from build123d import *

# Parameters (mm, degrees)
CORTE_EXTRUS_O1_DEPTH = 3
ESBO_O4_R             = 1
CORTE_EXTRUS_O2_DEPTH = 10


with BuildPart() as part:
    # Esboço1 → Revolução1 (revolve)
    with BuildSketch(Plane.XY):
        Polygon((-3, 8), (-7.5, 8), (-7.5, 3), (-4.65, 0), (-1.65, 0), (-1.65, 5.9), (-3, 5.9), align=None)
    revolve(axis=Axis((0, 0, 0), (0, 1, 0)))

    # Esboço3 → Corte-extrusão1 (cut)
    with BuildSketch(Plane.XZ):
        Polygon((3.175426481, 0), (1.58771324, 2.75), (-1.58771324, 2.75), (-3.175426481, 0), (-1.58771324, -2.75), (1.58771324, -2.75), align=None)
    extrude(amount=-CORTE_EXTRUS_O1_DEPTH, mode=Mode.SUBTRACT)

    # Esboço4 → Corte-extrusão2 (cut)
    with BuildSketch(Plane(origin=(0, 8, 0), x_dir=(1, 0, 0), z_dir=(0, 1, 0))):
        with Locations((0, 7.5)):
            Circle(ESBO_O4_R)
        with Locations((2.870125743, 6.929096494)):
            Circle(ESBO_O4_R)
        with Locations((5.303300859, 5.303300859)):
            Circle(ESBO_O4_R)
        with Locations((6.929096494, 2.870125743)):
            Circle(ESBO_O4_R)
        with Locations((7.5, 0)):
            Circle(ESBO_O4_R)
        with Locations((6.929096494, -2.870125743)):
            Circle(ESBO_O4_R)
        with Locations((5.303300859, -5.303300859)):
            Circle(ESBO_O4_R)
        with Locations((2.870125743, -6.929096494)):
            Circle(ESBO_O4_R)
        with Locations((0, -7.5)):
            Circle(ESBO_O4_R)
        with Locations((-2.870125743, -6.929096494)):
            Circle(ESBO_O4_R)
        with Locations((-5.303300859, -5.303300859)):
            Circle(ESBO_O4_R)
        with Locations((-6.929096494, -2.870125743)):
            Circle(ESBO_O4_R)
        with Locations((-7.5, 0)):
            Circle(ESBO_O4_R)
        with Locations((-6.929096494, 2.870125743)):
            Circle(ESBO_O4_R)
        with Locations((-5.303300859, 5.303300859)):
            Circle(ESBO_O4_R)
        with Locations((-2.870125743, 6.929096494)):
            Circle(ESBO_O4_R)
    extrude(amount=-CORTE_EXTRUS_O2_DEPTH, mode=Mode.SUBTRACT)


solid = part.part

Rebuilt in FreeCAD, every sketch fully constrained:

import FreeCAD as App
import Part
import Sketcher

V = App.Vector
Q = App.Units.Quantity

doc = App.newDocument("Part")
params = doc.addObject("Spreadsheet::Sheet", "Params")
for row, (alias, value) in enumerate([
    ("sketch1_width", "3 mm"),
    ("sketch1_height", "5 mm"),
    ("sketch1_width2", "4.5 mm"),
    ("sketch1_height2", "5.9 mm"),
    ("sketch1_height3", "2.1 mm"),
    ("revolution_angle", "360 deg"),
    ("pocket1_length", "3 mm"),
    ("sketch3_diameter", "2 mm"),
    ("pocket2_length", "10 mm"),
], start=1):
    params.set(f"A{row}", alias)
    params.set(f"B{row}", "=" + value)
    params.setAlias(f"B{row}", alias)

body = doc.addObject("PartDesign::Body", "Body")

# Sketch on XY plane
sketch1 = doc.addObject("Sketcher::SketchObject", "Sketch")
body.addObject(sketch1)
sketch1.AttachmentSupport = (doc.XY_Plane, [""])
sketch1.MapMode = "FlatFace"
sketch1.addGeometry([
    Part.LineSegment(V(-3, 8, 0), V(-7.5, 8, 0)),  # 0
    Part.LineSegment(V(-7.5, 8, 0), V(-7.5, 3, 0)),  # 1
    Part.LineSegment(V(-7.5, 3, 0), V(-4.7, 0, 0)),  # 2
    Part.LineSegment(V(-4.7, 0, 0), V(-1.6, 0, 0)),  # 3
    Part.LineSegment(V(-1.6, 0, 0), V(-1.6, 5.9, 0)),  # 4
    Part.LineSegment(V(-1.6, 5.9, 0), V(-3, 5.9, 0)),  # 5
    Part.LineSegment(V(-3, 5.9, 0), V(-3, 8, 0)),  # 6
], False)
sketch1.addConstraint([
    Sketcher.Constraint("Coincident", 0, 2, 1, 1),
    Sketcher.Constraint("Coincident", 1, 2, 2, 1),
    Sketcher.Constraint("Coincident", 2, 2, 3, 1),
    Sketcher.Constraint("Coincident", 3, 2, 4, 1),
    Sketcher.Constraint("Coincident", 4, 2, 5, 1),
    Sketcher.Constraint("Coincident", 5, 2, 6, 1),
    Sketcher.Constraint("Coincident", 6, 2, 0, 1),
    Sketcher.Constraint("Horizontal", 0),
    Sketcher.Constraint("Vertical", 1),
    Sketcher.Constraint("Horizontal", 3),
    Sketcher.Constraint("Vertical", 4),
    Sketcher.Constraint("Horizontal", 5),
    Sketcher.Constraint("Vertical", 6),
    Sketcher.Constraint("PointOnObject", 2, 2, -1),
    Sketcher.Constraint("DistanceX", 3, 1, 3, 2, 3.0),
    Sketcher.Constraint("DistanceY", 1, 2, 1, 1, 5.0),
    Sketcher.Constraint("DistanceX", 0, 2, 0, 1, 4.5),
    Sketcher.Constraint("DistanceY", 4, 1, 4, 2, 5.9),
    Sketcher.Constraint("DistanceY", 6, 1, 6, 2, 2.1),
    Sketcher.Constraint("DistanceX", 5, 2, -1, 1, 3.0),
    Sketcher.Constraint("DistanceX", 5, 2, 5, 1, 1.35),
])
sketch1.setExpression("Constraints[14]", "Params.sketch1_width")
sketch1.setExpression("Constraints[15]", "Params.sketch1_height")
sketch1.setExpression("Constraints[16]", "Params.sketch1_width2")
sketch1.setExpression("Constraints[17]", "Params.sketch1_height2")
sketch1.setExpression("Constraints[18]", "Params.sketch1_height3")
revolution = doc.addObject("PartDesign::Revolution", "Revolution")
body.addObject(revolution)
revolution.Profile = sketch1
revolution.ReferenceAxis = (sketch1, ["V_Axis"])
revolution.setExpression("Angle", "Params.revolution_angle")

# Sketch on XZ plane
sketch2 = doc.addObject("Sketcher::SketchObject", "Sketch001")
body.addObject(sketch2)
sketch2.AttachmentSupport = (doc.XZ_Plane, [""])
sketch2.MapMode = "FlatFace"
sketch2.addGeometry([
    Part.LineSegment(V(3.2, 0, 0), V(1.6, 2.8, 0)),  # 0
    Part.LineSegment(V(1.6, 2.8, 0), V(-1.6, 2.8, 0)),  # 1
    Part.LineSegment(V(-1.6, 2.8, 0), V(-3.2, 0, 0)),  # 2
    Part.LineSegment(V(-3.2, 0, 0), V(-1.6, -2.8, 0)),  # 3
    Part.LineSegment(V(-1.6, -2.8, 0), V(1.6, -2.8, 0)),  # 4
    Part.LineSegment(V(1.6, -2.8, 0), V(3.2, 0, 0)),  # 5
], False)
sketch2.addConstraint([
    Sketcher.Constraint("Coincident", 0, 2, 1, 1),
    Sketcher.Constraint("Coincident", 1, 2, 2, 1),
    Sketcher.Constraint("Coincident", 2, 2, 3, 1),
    Sketcher.Constraint("Coincident", 3, 2, 4, 1),
    Sketcher.Constraint("Coincident", 4, 2, 5, 1),
    Sketcher.Constraint("Coincident", 5, 2, 0, 1),
    Sketcher.Constraint("Horizontal", 1),
    Sketcher.Constraint("Horizontal", 4),
    Sketcher.Constraint("Symmetric", 0, 2, 3, 2, -1, 1),
    Sketcher.Constraint("Symmetric", 2, 2, 5, 2, -1, 1),
    Sketcher.Constraint("PointOnObject", 2, 2, -1),
    Sketcher.Constraint("Parallel", 2, 5),
    Sketcher.Constraint("Vertical", 1, 2, 3, 2),
    Sketcher.Constraint("Angle", 0, Q("120 deg")),
    Sketcher.Constraint("DistanceY", 3, 2, 1, 2, 5.5),
    Sketcher.Constraint("DistanceX", 1, 2, 1, 1, 3.175426),
])
pocket1 = doc.addObject("PartDesign::Pocket", "Pocket")
body.addObject(pocket1)
pocket1.Profile = sketch2
pocket1.setExpression("Length", "Params.pocket1_length")

# Sketch on XZ plane
sketch3 = doc.addObject("Sketcher::SketchObject", "Sketch002")
body.addObject(sketch3)
sketch3.AttachmentSupport = (doc.XZ_Plane, [""])
sketch3.MapMode = "FlatFace"
sketch3.AttachmentOffset = App.Placement(V(0, 0, -8), App.Rotation())
sketch3.addGeometry([
    Part.Circle(V(0, -7.5, 0), V(0, 0, 1), 1),  # 0
    Part.Circle(V(2.9, -6.9, 0), V(0, 0, 1), 1),  # 1
    Part.Circle(V(5.3, -5.3, 0), V(0, 0, 1), 1),  # 2
    Part.Circle(V(6.9, -2.9, 0), V(0, 0, 1), 1),  # 3
    Part.Circle(V(7.5, 0, 0), V(0, 0, 1), 1),  # 4
    Part.Circle(V(6.9, 2.9, 0), V(0, 0, 1), 1),  # 5
    Part.Circle(V(5.3, 5.3, 0), V(0, 0, 1), 1),  # 6
    Part.Circle(V(2.9, 6.9, 0), V(0, 0, 1), 1),  # 7
    Part.Circle(V(0, 7.5, 0), V(0, 0, 1), 1),  # 8
    Part.Circle(V(-2.9, 6.9, 0), V(0, 0, 1), 1),  # 9
    Part.Circle(V(-5.3, 5.3, 0), V(0, 0, 1), 1),  # 10
    Part.Circle(V(-6.9, 2.9, 0), V(0, 0, 1), 1),  # 11
    Part.Circle(V(-7.5, 0, 0), V(0, 0, 1), 1),  # 12
    Part.Circle(V(-6.9, -2.9, 0), V(0, 0, 1), 1),  # 13
    Part.Circle(V(-5.3, -5.3, 0), V(0, 0, 1), 1),  # 14
    Part.Circle(V(-2.9, -6.9, 0), V(0, 0, 1), 1),  # 15
], False)
sketch3.addConstraint([
    Sketcher.Constraint("Equal", 0, 1),
    Sketcher.Constraint("Equal", 1, 2),
    Sketcher.Constraint("Equal", 2, 3),
    Sketcher.Constraint("Equal", 3, 4),
    Sketcher.Constraint("Equal", 4, 5),
    Sketcher.Constraint("Equal", 5, 6),
    Sketcher.Constraint("Equal", 6, 7),
    Sketcher.Constraint("Equal", 7, 8),
    Sketcher.Constraint("Equal", 8, 9),
    Sketcher.Constraint("Equal", 9, 10),
    Sketcher.Constraint("Equal", 10, 11),
    Sketcher.Constraint("Equal", 11, 12),
    Sketcher.Constraint("Equal", 12, 13),
    Sketcher.Constraint("Equal", 13, 14),
    Sketcher.Constraint("Equal", 14, 15),
    Sketcher.Constraint("Symmetric", 0, 3, 8, 3, -1, 1),
    Sketcher.Constraint("Symmetric", 1, 3, 9, 3, -1, 1),
    Sketcher.Constraint("Symmetric", 2, 3, 10, 3, -1, 1),
    Sketcher.Constraint("Symmetric", 3, 3, 11, 3, -1, 1),
    Sketcher.Constraint("Symmetric", 4, 3, 12, 3, -1, 1),
    Sketcher.Constraint("Symmetric", 5, 3, 13, 3, -1, 1),
    Sketcher.Constraint("Symmetric", 6, 3, 14, 3, -1, 1),
    Sketcher.Constraint("Symmetric", 7, 3, 15, 3, -1, 1),
    Sketcher.Constraint("Symmetric", 7, 3, 9, 3, -2),
    Sketcher.Constraint("Symmetric", 6, 3, 10, 3, -2),
    Sketcher.Constraint("Symmetric", 5, 3, 11, 3, -2),
    Sketcher.Constraint("PointOnObject", 0, 3, -2),
    Sketcher.Constraint("PointOnObject", 4, 3, -1),
    Sketcher.Constraint("Diameter", 0, 2.0),
    Sketcher.Constraint("DistanceY", 0, 3, -1, 1, 7.5),
    Sketcher.Constraint("DistanceX", -1, 1, 4, 3, 7.5),
    Sketcher.Constraint("DistanceX", -1, 1, 2, 3, 5.303301),
    Sketcher.Constraint("DistanceY", 2, 3, -1, 1, 5.303301),
    Sketcher.Constraint("DistanceX", 1, 3, 3, 3, 4.058971),
    Sketcher.Constraint("DistanceY", 1, 3, 3, 3, 4.058971),
    Sketcher.Constraint("DistanceY", 3, 3, 5, 3, 5.740251),
    Sketcher.Constraint("DistanceX", 9, 3, 7, 3, 5.740251),
])
sketch3.setExpression("Constraints[28]", "Params.sketch3_diameter")
pocket2 = doc.addObject("PartDesign::Pocket", "Pocket001")
body.addObject(pocket2)
pocket2.Profile = sketch3
pocket2.setExpression("Length", "Params.pocket2_length")
pocket2.Reversed = True

doc.recompute()
